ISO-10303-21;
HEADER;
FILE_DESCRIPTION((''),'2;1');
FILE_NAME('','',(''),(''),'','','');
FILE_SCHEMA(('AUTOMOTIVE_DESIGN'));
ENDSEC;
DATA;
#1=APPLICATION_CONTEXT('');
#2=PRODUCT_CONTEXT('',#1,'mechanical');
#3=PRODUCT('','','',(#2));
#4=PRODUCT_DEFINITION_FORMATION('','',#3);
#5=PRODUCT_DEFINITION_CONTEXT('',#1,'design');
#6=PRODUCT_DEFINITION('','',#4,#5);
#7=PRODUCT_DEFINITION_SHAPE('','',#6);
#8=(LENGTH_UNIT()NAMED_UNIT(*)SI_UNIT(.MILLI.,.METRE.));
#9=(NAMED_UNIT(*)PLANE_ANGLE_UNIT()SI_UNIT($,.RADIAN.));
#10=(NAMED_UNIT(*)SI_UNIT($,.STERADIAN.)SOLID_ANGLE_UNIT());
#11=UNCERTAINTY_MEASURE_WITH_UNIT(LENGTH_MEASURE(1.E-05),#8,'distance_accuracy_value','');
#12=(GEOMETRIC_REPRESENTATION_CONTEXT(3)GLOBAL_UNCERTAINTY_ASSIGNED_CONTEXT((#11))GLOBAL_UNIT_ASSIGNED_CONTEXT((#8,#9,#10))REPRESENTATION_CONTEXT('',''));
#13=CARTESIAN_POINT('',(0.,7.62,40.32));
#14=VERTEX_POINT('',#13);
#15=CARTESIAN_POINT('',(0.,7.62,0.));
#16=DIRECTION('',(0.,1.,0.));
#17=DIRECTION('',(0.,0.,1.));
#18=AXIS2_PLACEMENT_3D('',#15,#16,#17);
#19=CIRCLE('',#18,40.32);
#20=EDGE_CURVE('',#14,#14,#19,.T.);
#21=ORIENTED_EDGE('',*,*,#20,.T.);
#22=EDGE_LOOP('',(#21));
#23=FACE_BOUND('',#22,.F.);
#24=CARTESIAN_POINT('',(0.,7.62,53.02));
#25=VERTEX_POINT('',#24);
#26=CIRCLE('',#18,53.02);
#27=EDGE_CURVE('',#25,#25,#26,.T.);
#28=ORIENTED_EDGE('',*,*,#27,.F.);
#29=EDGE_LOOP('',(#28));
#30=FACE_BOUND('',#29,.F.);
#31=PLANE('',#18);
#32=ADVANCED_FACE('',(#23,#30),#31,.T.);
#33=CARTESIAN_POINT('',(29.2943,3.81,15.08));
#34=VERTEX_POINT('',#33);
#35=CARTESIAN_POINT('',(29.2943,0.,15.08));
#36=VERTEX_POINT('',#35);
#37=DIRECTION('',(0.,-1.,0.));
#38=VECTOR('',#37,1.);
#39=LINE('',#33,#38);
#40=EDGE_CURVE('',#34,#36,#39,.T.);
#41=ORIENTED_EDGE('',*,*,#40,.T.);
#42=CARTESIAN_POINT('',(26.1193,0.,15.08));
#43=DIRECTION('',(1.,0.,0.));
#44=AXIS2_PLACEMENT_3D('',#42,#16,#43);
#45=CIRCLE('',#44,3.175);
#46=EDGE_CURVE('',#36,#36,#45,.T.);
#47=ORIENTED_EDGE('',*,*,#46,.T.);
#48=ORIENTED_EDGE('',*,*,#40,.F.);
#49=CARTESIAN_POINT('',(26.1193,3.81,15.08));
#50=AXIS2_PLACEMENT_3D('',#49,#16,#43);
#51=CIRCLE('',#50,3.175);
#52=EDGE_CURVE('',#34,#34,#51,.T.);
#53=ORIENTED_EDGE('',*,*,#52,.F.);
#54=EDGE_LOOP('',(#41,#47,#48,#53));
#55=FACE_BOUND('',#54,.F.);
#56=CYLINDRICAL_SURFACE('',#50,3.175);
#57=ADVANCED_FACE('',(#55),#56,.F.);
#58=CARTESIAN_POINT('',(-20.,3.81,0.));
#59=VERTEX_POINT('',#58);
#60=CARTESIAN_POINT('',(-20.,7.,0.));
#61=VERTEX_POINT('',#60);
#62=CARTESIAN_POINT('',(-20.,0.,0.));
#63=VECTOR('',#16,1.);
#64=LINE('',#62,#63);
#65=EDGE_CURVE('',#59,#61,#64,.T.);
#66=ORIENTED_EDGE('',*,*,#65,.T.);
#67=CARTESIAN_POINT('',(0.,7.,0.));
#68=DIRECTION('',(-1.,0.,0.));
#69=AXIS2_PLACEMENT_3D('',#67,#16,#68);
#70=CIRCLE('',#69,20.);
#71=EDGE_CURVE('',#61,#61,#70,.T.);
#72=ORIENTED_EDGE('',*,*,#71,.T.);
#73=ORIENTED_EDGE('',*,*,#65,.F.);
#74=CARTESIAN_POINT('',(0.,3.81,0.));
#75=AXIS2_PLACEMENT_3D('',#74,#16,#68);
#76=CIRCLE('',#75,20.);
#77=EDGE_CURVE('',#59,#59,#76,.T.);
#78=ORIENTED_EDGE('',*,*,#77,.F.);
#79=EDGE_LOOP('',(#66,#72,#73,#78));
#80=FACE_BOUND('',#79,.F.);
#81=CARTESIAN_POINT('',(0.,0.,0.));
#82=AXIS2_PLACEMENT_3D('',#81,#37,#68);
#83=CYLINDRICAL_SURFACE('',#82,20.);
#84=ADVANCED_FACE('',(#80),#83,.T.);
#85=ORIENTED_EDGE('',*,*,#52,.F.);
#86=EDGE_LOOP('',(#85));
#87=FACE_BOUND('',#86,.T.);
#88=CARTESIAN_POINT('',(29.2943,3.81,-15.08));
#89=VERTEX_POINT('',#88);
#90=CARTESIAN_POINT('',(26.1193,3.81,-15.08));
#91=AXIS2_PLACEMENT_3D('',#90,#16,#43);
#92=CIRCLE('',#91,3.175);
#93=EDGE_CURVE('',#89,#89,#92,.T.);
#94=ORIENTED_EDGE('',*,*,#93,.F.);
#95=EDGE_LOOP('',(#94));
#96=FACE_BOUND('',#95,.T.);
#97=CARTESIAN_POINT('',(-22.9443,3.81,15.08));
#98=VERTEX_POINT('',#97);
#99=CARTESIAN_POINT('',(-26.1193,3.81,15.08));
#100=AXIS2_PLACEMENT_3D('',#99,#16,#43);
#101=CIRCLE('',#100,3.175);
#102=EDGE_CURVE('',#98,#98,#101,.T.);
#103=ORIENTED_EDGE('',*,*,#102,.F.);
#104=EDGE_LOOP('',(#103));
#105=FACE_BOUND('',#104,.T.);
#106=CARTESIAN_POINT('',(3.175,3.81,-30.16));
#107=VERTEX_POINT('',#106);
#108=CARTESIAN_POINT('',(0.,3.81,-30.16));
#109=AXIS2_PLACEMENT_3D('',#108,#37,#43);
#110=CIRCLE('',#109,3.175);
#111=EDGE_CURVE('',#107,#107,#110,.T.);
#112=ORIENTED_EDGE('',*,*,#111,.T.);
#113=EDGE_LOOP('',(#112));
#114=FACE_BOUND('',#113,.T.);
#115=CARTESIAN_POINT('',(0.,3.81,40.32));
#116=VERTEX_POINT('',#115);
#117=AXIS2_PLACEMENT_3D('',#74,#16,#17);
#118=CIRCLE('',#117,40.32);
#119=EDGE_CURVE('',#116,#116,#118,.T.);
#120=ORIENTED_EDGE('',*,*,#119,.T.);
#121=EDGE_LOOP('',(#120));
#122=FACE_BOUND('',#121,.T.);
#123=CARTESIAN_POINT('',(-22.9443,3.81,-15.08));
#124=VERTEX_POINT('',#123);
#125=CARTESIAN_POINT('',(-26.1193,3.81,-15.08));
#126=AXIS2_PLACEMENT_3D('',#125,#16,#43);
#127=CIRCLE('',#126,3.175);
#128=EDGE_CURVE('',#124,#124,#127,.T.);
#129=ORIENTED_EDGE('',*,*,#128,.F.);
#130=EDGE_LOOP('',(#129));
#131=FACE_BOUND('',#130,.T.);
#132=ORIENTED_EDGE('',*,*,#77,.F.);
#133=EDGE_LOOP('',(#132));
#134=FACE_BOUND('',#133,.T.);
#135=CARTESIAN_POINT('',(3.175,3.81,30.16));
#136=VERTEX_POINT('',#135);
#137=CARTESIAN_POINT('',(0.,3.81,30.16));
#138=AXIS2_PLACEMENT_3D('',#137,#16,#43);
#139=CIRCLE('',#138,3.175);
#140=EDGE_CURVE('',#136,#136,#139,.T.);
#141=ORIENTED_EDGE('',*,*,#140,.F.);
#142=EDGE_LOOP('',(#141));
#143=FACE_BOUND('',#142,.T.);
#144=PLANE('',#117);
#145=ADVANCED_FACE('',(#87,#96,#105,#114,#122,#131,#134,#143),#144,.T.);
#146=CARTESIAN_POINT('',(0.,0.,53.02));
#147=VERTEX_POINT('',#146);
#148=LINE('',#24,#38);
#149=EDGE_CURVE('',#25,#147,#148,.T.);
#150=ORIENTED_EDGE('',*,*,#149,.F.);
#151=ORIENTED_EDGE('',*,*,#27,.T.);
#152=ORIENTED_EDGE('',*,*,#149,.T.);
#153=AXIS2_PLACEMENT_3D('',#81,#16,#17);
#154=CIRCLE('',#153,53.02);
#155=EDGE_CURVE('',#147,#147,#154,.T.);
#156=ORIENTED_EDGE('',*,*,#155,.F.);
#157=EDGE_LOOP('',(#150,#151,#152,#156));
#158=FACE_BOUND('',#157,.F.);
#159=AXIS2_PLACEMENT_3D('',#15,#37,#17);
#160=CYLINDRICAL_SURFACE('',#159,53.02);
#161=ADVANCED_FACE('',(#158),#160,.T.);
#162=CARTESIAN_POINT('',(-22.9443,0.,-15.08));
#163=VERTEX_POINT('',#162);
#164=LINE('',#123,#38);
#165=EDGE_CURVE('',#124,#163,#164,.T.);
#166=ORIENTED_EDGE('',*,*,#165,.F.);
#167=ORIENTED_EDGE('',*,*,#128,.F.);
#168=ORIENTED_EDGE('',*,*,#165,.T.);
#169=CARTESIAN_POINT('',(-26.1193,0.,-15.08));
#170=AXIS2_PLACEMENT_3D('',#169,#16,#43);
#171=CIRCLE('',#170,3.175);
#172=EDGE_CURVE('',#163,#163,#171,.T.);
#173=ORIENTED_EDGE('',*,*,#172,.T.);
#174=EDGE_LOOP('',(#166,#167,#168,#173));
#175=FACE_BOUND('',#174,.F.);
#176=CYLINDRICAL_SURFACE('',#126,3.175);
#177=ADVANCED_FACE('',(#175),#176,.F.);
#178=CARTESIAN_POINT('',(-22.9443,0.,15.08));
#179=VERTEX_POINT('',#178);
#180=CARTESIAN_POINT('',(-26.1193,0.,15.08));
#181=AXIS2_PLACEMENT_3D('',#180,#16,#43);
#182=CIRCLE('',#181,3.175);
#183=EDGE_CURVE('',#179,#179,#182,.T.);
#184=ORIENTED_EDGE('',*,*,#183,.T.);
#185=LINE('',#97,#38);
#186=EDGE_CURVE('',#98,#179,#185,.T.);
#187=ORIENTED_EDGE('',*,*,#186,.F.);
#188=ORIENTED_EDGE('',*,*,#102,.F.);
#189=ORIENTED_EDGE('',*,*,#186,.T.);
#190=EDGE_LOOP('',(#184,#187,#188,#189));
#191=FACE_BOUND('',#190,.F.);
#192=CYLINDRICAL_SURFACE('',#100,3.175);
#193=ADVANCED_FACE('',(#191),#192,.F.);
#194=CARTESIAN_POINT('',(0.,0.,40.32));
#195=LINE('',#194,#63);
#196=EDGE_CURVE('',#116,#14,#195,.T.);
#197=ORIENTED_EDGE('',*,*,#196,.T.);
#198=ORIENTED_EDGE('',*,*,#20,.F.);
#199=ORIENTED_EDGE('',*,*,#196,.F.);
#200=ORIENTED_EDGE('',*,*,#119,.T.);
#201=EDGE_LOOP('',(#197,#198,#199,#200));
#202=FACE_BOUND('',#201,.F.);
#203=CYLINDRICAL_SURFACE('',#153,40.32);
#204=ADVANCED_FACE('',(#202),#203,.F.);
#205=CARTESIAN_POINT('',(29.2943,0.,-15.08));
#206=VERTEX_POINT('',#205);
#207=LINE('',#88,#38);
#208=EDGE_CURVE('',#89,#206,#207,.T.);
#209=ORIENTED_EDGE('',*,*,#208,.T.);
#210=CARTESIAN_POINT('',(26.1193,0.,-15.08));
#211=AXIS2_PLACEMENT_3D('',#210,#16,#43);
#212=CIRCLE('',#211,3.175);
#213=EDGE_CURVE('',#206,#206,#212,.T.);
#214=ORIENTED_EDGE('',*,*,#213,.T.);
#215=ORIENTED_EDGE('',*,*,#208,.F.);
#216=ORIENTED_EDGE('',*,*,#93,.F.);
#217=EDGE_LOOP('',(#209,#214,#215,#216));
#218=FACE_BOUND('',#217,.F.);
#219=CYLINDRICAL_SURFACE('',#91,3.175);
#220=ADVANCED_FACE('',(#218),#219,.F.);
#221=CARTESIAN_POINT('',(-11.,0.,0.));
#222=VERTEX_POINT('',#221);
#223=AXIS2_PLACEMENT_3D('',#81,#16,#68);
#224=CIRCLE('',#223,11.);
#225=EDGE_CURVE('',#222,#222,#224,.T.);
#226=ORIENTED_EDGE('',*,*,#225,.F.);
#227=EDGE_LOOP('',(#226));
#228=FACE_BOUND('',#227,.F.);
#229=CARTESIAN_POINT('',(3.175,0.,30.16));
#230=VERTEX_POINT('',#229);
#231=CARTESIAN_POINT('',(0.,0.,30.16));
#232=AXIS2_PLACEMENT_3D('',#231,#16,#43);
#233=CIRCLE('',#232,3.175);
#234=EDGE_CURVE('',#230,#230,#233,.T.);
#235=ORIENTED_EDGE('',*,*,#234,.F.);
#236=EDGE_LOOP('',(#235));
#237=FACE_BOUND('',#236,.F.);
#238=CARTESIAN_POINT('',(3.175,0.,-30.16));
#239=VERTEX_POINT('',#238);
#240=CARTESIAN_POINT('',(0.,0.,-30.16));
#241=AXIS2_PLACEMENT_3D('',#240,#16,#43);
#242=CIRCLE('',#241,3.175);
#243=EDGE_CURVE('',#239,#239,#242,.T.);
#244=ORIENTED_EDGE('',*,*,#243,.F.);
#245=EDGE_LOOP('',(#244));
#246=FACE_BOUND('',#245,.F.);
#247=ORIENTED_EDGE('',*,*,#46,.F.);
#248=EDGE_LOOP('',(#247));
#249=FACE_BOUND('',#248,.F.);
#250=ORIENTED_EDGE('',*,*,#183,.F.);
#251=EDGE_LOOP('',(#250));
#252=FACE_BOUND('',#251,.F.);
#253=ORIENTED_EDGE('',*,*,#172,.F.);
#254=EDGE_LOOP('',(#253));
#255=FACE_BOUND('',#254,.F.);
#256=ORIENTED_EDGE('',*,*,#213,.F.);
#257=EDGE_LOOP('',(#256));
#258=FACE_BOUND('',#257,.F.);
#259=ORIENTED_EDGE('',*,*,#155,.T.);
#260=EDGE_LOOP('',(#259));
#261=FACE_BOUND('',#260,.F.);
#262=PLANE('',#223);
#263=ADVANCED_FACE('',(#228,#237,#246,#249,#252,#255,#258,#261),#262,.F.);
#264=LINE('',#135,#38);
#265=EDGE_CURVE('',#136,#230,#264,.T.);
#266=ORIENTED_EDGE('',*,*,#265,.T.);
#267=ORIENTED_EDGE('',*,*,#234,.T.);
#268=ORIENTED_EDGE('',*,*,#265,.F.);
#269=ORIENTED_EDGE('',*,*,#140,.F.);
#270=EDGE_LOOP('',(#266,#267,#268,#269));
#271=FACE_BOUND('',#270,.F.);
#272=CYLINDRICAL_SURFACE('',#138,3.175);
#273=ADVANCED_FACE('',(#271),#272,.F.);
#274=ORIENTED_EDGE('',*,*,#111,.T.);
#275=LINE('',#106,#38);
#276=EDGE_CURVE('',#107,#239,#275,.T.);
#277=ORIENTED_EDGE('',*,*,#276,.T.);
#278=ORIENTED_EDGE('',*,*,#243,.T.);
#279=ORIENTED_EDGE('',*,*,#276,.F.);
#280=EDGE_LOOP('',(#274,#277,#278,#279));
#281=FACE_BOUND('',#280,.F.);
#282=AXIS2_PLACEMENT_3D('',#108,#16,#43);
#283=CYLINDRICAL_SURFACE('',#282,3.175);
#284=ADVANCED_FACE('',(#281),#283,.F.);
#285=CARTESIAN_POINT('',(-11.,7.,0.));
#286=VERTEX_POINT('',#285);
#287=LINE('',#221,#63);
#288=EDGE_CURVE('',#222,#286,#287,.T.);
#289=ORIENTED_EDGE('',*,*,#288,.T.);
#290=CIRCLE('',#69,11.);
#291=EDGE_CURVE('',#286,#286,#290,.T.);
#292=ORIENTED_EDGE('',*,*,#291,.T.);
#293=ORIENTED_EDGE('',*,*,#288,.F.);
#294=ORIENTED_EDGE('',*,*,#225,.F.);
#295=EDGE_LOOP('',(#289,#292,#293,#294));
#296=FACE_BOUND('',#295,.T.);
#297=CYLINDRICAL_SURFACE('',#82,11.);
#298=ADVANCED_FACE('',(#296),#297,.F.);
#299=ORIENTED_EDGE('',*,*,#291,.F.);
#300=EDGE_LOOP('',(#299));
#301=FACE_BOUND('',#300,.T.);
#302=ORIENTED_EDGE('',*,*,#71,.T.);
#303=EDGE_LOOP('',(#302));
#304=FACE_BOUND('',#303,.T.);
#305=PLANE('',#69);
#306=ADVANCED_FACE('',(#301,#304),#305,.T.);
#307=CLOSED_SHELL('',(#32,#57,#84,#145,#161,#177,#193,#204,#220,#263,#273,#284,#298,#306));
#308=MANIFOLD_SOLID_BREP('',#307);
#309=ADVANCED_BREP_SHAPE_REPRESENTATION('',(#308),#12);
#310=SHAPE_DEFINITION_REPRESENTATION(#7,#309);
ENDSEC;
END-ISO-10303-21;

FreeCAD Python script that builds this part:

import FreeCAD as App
import Part
import Sketcher
from FreeCAD import Vector
Q = App.Units.Quantity


def add_polygon(sketch, points):
    """Adds a closed chain of lines whose ends are joined by coincident constraints."""
    first, n = sketch.GeometryCount, len(points)
    for a, b in zip(points, points[1:] + points[:1]):
        sketch.addGeometry(Part.LineSegment(App.Vector(*a, 0), App.Vector(*b, 0)), False)
    for i in range(n):
        sketch.addConstraint(Sketcher.Constraint("Coincident", first + i, 2, first + (i + 1) % n, 1))

doc = App.newDocument("Part")
body = doc.addObject("PartDesign::Body", "Body")

# Sketch on XZ plane
sketch1 = doc.addObject("Sketcher::SketchObject", "Sketch")
body.addObject(sketch1)
sketch1.AttachmentSupport = (doc.XZ_Plane, [""])
sketch1.MapMode = "FlatFace"
sketch1.addGeometry(Part.Circle(Vector(0, 0, 0), Vector(0, 0, 1), 20), False)
sketch1.addGeometry(Part.Circle(Vector(0, 0, 0), Vector(0, 0, 1), 11), False)
sketch1.addConstraint(Sketcher.Constraint("Coincident", 0, 3, -1, 1))
sketch1.addConstraint(Sketcher.Constraint("Coincident", 1, 3, -1, 1))
sketch1.addConstraint(Sketcher.Constraint("Diameter", 0, Q("1.5748 in")))
sketch1.addConstraint(Sketcher.Constraint("Diameter", 1, Q("22 mm")))
pad1 = doc.addObject("PartDesign::Pad", "Pad")
body.addObject(pad1)
pad1.Profile = sketch1
pad1.Length = Q("0.2755906 in")
pad1.Reversed = True

# Sketch on YZ plane
sketch2 = doc.addObject("Sketcher::SketchObject", "Sketch001")
body.addObject(sketch2)
sketch2.AttachmentSupport = (doc.YZ_Plane, [""])
sketch2.MapMode = "FlatFace"
add_polygon(sketch2, [(0, 53), (0, 20), (3.8, 20), (3.8, 40.3), (7.6, 40.3), (7.6, 53)])  # lines 0-5
sketch2.addConstraint(Sketcher.Constraint("Vertical", 0))
sketch2.addConstraint(Sketcher.Constraint("Horizontal", 1))
sketch2.addConstraint(Sketcher.Constraint("Vertical", 2))
sketch2.addConstraint(Sketcher.Constraint("Horizontal", 3))
sketch2.addConstraint(Sketcher.Constraint("Vertical", 4))
sketch2.addConstraint(Sketcher.Constraint("Horizontal", 5))
sketch2.addConstraint(Sketcher.Constraint("PointOnObject", 0, 2, -2))
sketch2.addConstraint(Sketcher.Constraint("Equal", 1, 3))
sketch2.addConstraint(Sketcher.Constraint("DistanceX", 5, 2, 5, 1, Q("0.3 in")))
sketch2.addConstraint(Sketcher.Constraint("DistanceY", 2, 1, 2, 2, Q("0.8 in")))
sketch2.addConstraint(Sketcher.Constraint("DistanceY", 4, 1, 4, 2, Q("0.5 in")))
sketch2.addConstraint(Sketcher.Constraint("DistanceY", -1, 1, 0, 2, Q("0.7874 in")))
revolution = doc.addObject("PartDesign::Revolution", "Revolution")
body.addObject(revolution)
revolution.Profile = sketch2
revolution.ReferenceAxis = (sketch2, ["H_Axis"])
revolution.Angle = 360

# Sketch on XZ plane
sketch3 = doc.addObject("Sketcher::SketchObject", "Sketch002")
body.addObject(sketch3)
sketch3.AttachmentSupport = (doc.XZ_Plane, [""])
sketch3.MapMode = "FlatFace"
sketch3.AttachmentOffset = App.Placement(Vector(0, 0, -0.15 * 25.4), App.Rotation())
sketch3.addGeometry(Part.Circle(Vector(0, -30.2, 0), Vector(0, 0, 1), 3.2), False)
sketch3.addGeometry(Part.Circle(Vector(-26.1, -15.1, 0), Vector(0, 0, 1), 3.2), False)
sketch3.addGeometry(Part.Circle(Vector(-26.1, 15.1, 0), Vector(0, 0, 1), 3.2), False)
sketch3.addGeometry(Part.Circle(Vector(0, 30.2, 0), Vector(0, 0, 1), 3.2), False)
sketch3.addGeometry(Part.Circle(Vector(26.1, 15.1, 0), Vector(0, 0, 1), 3.2), False)
sketch3.addGeometry(Part.Circle(Vector(26.1, -15.1, 0), Vector(0, 0, 1), 3.2), False)
sketch3.addConstraint(Sketcher.Constraint("Equal", 0, 1))
sketch3.addConstraint(Sketcher.Constraint("Equal", 1, 2))
sketch3.addConstraint(Sketcher.Constraint("Equal", 2, 3))
sketch3.addConstraint(Sketcher.Constraint("Equal", 3, 4))
sketch3.addConstraint(Sketcher.Constraint("Equal", 4, 5))
sketch3.addConstraint(Sketcher.Constraint("Symmetric", 0, 3, 3, 3, -1, 1))
sketch3.addConstraint(Sketcher.Constraint("Symmetric", 1, 3, 4, 3, -1, 1))
sketch3.addConstraint(Sketcher.Constraint("Symmetric", 2, 3, 5, 3, -1, 1))
sketch3.addConstraint(Sketcher.Constraint("Symmetric", 2, 3, 4, 3, -2))
sketch3.addConstraint(Sketcher.Constraint("PointOnObject", 0, 3, -2))
sketch3.addConstraint(Sketcher.Constraint("Diameter", 0, Q("0.25 in")))
sketch3.addConstraint(Sketcher.Constraint("DistanceY", 0, 3, -1, 1, Q("1.1874 in")))
sketch3.addConstraint(Sketcher.Constraint("DistanceY", 1, 3, -1, 1, Q("0.5937 in")))
sketch3.addConstraint(Sketcher.Constraint("DistanceX", 1, 3, -1, 1, Q("26.1193 mm")))
pocket1 = doc.addObject("PartDesign::Pocket", "Pocket")
body.addObject(pocket1)
pocket1.Profile = sketch3
pocket1.Length = Q("0.2755906 in")
pocket1.Reversed = True

doc.recompute()
